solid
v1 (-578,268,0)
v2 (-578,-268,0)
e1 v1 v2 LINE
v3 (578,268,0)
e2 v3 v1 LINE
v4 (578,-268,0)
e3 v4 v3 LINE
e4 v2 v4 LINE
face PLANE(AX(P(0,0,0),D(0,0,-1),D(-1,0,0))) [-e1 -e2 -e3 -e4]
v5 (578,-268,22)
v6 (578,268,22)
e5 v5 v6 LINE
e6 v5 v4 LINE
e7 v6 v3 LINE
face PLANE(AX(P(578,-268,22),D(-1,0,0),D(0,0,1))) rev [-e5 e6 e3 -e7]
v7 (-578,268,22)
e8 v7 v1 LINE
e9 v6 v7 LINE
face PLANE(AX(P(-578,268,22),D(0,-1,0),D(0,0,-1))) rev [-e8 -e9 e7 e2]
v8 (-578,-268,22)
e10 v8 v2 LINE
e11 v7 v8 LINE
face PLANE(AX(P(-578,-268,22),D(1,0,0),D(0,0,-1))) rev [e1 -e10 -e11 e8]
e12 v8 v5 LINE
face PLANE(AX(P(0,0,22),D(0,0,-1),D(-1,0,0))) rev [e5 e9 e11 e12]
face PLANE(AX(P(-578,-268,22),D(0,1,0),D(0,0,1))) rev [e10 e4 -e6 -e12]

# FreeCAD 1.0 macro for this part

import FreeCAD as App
import Part
import Sketcher

V = App.Vector
Q = App.Units.Quantity

doc = App.newDocument("Part")
body = doc.addObject("PartDesign::Body", "Body")

# Sketch on XY plane
sketch1 = body.newObject("Sketcher::SketchObject", "Sketch")
sketch1.AttachmentSupport = (doc.getObject("XY_Plane"), [""])
sketch1.MapMode = "FlatFace"
sketch1.addGeometry([
    Part.LineSegment(V(-578, 268, 0), V(-578, -268, 0)),
    Part.LineSegment(V(-578, -268, 0), V(578, -268, 0)),
    Part.LineSegment(V(578, -268, 0), V(578, 268, 0)),
    Part.LineSegment(V(578, 268, 0), V(-578, 268, 0)),
], False)
sketch1.addConstraint([
    Sketcher.Constraint("Coincident", 0, 2, 1, 1),
    Sketcher.Constraint("Coincident", 1, 2, 2, 1),
    Sketcher.Constraint("Coincident", 2, 2, 3, 1),
    Sketcher.Constraint("Coincident", 3, 2, 0, 1),
    Sketcher.Constraint("Vertical", 0),
    Sketcher.Constraint("Horizontal", 1),
    Sketcher.Constraint("Vertical", 2),
    Sketcher.Constraint("Horizontal", 3),
    Sketcher.Constraint("Symmetric", 0, 2, 2, 2, -1, 1),
    Sketcher.Constraint("DistanceX", 1, 1, 1, 2, Q("1156 mm")),
    Sketcher.Constraint("DistanceY", 0, 2, 0, 1, Q("536 mm")),
])
pad1 = body.newObject("PartDesign::Pad", "Pad")
pad1.Profile = sketch1
pad1.Length = 22

doc.recompute()
